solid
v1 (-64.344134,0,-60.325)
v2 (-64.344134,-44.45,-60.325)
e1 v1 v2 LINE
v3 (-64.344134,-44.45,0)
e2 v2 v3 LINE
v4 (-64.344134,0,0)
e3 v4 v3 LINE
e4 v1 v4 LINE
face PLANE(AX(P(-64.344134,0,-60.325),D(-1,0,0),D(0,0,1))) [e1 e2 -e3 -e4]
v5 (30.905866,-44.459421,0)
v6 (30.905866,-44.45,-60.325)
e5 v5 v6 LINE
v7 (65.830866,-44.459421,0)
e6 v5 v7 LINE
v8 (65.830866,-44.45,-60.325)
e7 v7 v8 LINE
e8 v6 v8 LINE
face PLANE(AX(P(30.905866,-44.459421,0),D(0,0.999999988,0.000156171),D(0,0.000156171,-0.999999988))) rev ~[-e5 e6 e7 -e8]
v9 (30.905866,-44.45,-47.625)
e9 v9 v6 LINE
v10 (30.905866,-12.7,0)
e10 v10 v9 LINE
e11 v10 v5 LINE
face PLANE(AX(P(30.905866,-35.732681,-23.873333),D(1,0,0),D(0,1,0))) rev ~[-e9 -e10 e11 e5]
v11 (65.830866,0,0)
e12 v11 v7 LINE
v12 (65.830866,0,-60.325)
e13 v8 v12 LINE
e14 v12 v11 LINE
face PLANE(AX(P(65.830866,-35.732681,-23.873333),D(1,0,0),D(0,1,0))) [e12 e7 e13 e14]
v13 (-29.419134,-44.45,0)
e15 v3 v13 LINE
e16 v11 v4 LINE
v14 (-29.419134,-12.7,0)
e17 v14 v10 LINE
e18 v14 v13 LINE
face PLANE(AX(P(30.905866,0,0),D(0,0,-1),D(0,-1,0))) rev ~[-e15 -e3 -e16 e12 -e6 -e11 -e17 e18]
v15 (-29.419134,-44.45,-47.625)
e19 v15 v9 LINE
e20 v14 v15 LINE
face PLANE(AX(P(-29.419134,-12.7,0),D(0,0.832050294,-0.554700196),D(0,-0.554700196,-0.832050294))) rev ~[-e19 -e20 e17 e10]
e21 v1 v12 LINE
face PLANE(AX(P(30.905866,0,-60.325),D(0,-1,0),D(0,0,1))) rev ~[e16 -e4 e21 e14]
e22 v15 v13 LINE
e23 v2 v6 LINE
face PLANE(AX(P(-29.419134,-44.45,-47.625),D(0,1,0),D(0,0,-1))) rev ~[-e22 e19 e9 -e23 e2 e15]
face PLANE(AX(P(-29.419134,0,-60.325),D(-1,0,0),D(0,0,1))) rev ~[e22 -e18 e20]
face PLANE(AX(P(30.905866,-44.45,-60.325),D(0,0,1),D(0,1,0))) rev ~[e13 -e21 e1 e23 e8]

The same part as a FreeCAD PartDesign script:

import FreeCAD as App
import Part
import Sketcher
from FreeCAD import Vector
Q = App.Units.Quantity


def add_polygon(sketch, points):
    """Adds a closed chain of lines whose ends are joined by coincident constraints."""
    first, n = sketch.GeometryCount, len(points)
    for a, b in zip(points, points[1:] + points[:1]):
        sketch.addGeometry(Part.LineSegment(App.Vector(*a, 0), App.Vector(*b, 0)), False)
    for i in range(n):
        sketch.addConstraint(Sketcher.Constraint("Coincident", first + i, 2, first + (i + 1) % n, 1))

doc = App.newDocument("Part")
params = doc.addObject("Spreadsheet::Sheet", "Params")
for row, (alias, value) in enumerate([
    ("sketch1_width", "1.375 in"),
    ("sketch1_height", "2.375 in"),
    ("pad1_length", "1.75 in"),
    ("sketch2_width", "0.5 in"),
    ("sketch2_width2", "1.75 in"),
    ("sketch2_height", "2.375 in"),
    ("pad2_length", "2.375 in"),
    ("sketch3_width", "1.75 in"),
    ("sketch3_height", "2.375 in"),
    ("pad3_length", "1.375 in"),
], start=1):
    params.set(f"A{row}", alias)
    params.set(f"B{row}", "=" + value)
    params.setAlias(f"B{row}", alias)

body = doc.addObject("PartDesign::Body", "Body")

# Sketch on XZ plane
sketch1 = body.newObject("Sketcher::SketchObject", "Sketch")
sketch1.AttachmentSupport = (doc.getObject("XZ_Plane"), [""])
sketch1.MapMode = "FlatFace"
add_polygon(sketch1, [(-64, 0), (-64, -60), (-29, -60), (-29, 0)])  # lines 0-3
sketch1.addConstraint(Sketcher.Constraint("Vertical", 0))
sketch1.addConstraint(Sketcher.Constraint("Horizontal", 1))
sketch1.addConstraint(Sketcher.Constraint("Vertical", 2))
sketch1.addConstraint(Sketcher.Constraint("Horizontal", 3))
sketch1.addConstraint(Sketcher.Constraint("PointOnObject", 2, 2, -1))
sketch1.addConstraint(Sketcher.Constraint("DistanceX", 1, 1, 1, 2, Q("1.375 in")))
sketch1.addConstraint(Sketcher.Constraint("DistanceY", 0, 2, 0, 1, Q("2.375 in")))
sketch1.addConstraint(Sketcher.Constraint("DistanceX", 0, 2, -1, 1, 64.344134))
sketch1.setExpression("Constraints[9]", "Params.sketch1_width")
sketch1.setExpression("Constraints[10]", "Params.sketch1_height")
pad1 = body.newObject("PartDesign::Pad", "Pad")
pad1.Profile = sketch1
pad1.setExpression("Length", "Params.pad1_length")

# Sketch on YZ plane
sketch2 = body.newObject("Sketcher::SketchObject", "Sketch001")
sketch2.AttachmentSupport = (doc.getObject("YZ_Plane"), [""])
sketch2.MapMode = "FlatFace"
sketch2.AttachmentOffset = App.Placement(Vector(0, 0, -29.419134), App.Rotation())
add_polygon(sketch2, [(-44, -48), (-44, -60), (0, -60), (0, 0), (-13, 0)])  # lines 0-4
sketch2.addConstraint(Sketcher.Constraint("Vertical", 0))
sketch2.addConstraint(Sketcher.Constraint("Horizontal", 1))
sketch2.addConstraint(Sketcher.Constraint("Vertical", 2))
sketch2.addConstraint(Sketcher.Constraint("Horizontal", 3))
sketch2.addConstraint(Sketcher.Constraint("Coincident", 2, 2, -1, 1))
sketch2.addConstraint(Sketcher.Constraint("Equal", 3, 0))
sketch2.addConstraint(Sketcher.Constraint("DistanceX", 3, 2, 3, 1, Q("0.5 in")))
sketch2.addConstraint(Sketcher.Constraint("DistanceX", 1, 1, 1, 2, Q("1.75 in")))
sketch2.addConstraint(Sketcher.Constraint("DistanceY", 2, 1, 2, 2, Q("2.375 in")))
sketch2.setExpression("Constraints[11]", "Params.sketch2_width")
sketch2.setExpression("Constraints[12]", "Params.sketch2_width2")
sketch2.setExpression("Constraints[13]", "Params.sketch2_height")
pad2 = body.newObject("PartDesign::Pad", "Pad001")
pad2.Profile = sketch2
pad2.setExpression("Length", "Params.pad2_length")

# Sketch on YZ plane
sketch3 = body.newObject("Sketcher::SketchObject", "Sketch002")
sketch3.AttachmentSupport = (doc.getObject("YZ_Plane"), [""])
sketch3.MapMode = "FlatFace"
sketch3.AttachmentOffset = App.Placement(Vector(0, 0, 30.905866), App.Rotation())
add_polygon(sketch3, [(-44, 0), (-44, -60), (0, -60), (0, 0)])  # lines 0-3
sketch3.addConstraint(Sketcher.Constraint("Horizontal", 1))
sketch3.addConstraint(Sketcher.Constraint("Vertical", 2))
sketch3.addConstraint(Sketcher.Constraint("Horizontal", 3))
sketch3.addConstraint(Sketcher.Constraint("Coincident", 2, 2, -1, 1))
sketch3.addConstraint(Sketcher.Constraint("DistanceX", 1, 1, 1, 2, Q("1.75 in")))
sketch3.addConstraint(Sketcher.Constraint("DistanceY", 2, 1, 2, 2, Q("2.375 in")))
sketch3.addConstraint(Sketcher.Constraint("DistanceX", 3, 2, 3, 1, 44.459421))
sketch3.setExpression("Constraints[8]", "Params.sketch3_width")
sketch3.setExpression("Constraints[9]", "Params.sketch3_height")
pad3 = body.newObject("PartDesign::Pad", "Pad002")
pad3.Profile = sketch3
pad3.setExpression("Length", "Params.pad3_length")

doc.recompute()
